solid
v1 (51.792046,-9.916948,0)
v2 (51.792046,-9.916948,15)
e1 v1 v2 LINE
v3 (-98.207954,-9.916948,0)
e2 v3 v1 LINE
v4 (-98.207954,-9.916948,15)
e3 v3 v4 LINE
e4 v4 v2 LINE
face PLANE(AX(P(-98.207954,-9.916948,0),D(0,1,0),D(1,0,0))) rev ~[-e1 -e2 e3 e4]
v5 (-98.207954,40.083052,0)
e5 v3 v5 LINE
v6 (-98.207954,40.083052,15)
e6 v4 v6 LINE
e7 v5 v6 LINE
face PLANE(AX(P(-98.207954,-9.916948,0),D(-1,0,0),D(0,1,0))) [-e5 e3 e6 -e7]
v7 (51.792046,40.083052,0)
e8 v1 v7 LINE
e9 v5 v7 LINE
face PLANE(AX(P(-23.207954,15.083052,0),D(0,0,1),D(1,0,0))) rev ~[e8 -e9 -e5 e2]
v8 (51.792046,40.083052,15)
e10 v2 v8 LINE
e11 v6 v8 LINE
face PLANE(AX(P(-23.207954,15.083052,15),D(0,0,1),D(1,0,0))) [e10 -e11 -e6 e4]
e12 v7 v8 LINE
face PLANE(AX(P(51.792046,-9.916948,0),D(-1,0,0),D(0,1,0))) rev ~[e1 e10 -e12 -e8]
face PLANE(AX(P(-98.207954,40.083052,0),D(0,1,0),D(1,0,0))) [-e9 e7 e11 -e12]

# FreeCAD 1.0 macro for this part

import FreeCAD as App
import Part
import Sketcher
from FreeCAD import Vector

doc = App.newDocument("Part")
body = doc.addObject("PartDesign::Body", "Body")

sketch1 = body.newObject("Sketcher::SketchObject", "Sketch")
sketch1.AttachmentSupport = (doc.getObject("XY_Plane"), [""])
sketch1.MapMode = "FlatFace"
sketch1.addGeometry(Part.LineSegment(Vector(-98.207954, 40.083052, 0), Vector(-98.207954, -9.916948, 0)), False)
sketch1.addGeometry(Part.LineSegment(Vector(-98.207954, -9.916948, 0), Vector(51.792046, -9.916948, 0)), False)
sketch1.addGeometry(Part.LineSegment(Vector(51.792046, -9.916948, 0), Vector(51.792046, 40.083052, 0)), False)
sketch1.addGeometry(Part.LineSegment(Vector(51.792046, 40.083052, 0), Vector(-98.207954, 40.083052, 0)), False)
sketch1.addConstraint(Sketcher.Constraint("Coincident", 0, 2, 1, 1))
sketch1.addConstraint(Sketcher.Constraint("Coincident", 1, 2, 2, 1))
sketch1.addConstraint(Sketcher.Constraint("Coincident", 2, 2, 3, 1))
sketch1.addConstraint(Sketcher.Constraint("Coincident", 3, 2, 0, 1))
sketch1.addConstraint(Sketcher.Constraint("Vertical", 0))
sketch1.addConstraint(Sketcher.Constraint("Horizontal", 1))
sketch1.addConstraint(Sketcher.Constraint("Vertical", 2))
sketch1.addConstraint(Sketcher.Constraint("Horizontal", 3))
sketch1.addConstraint(Sketcher.Constraint("DistanceX", 1, 1, 1, 2, 150.0))
sketch1.addConstraint(Sketcher.Constraint("DistanceY", 0, 2, 0, 1, 50.0))
sketch1.addConstraint(Sketcher.Constraint("DistanceX", 0, 2, -1, 1, 98.207954))
sketch1.addConstraint(Sketcher.Constraint("DistanceY", 0, 2, -1, 1, 9.916948))
pad1 = body.newObject("PartDesign::Pad", "Pad")
pad1.Profile = sketch1
pad1.Length = 15

doc.recompute()
